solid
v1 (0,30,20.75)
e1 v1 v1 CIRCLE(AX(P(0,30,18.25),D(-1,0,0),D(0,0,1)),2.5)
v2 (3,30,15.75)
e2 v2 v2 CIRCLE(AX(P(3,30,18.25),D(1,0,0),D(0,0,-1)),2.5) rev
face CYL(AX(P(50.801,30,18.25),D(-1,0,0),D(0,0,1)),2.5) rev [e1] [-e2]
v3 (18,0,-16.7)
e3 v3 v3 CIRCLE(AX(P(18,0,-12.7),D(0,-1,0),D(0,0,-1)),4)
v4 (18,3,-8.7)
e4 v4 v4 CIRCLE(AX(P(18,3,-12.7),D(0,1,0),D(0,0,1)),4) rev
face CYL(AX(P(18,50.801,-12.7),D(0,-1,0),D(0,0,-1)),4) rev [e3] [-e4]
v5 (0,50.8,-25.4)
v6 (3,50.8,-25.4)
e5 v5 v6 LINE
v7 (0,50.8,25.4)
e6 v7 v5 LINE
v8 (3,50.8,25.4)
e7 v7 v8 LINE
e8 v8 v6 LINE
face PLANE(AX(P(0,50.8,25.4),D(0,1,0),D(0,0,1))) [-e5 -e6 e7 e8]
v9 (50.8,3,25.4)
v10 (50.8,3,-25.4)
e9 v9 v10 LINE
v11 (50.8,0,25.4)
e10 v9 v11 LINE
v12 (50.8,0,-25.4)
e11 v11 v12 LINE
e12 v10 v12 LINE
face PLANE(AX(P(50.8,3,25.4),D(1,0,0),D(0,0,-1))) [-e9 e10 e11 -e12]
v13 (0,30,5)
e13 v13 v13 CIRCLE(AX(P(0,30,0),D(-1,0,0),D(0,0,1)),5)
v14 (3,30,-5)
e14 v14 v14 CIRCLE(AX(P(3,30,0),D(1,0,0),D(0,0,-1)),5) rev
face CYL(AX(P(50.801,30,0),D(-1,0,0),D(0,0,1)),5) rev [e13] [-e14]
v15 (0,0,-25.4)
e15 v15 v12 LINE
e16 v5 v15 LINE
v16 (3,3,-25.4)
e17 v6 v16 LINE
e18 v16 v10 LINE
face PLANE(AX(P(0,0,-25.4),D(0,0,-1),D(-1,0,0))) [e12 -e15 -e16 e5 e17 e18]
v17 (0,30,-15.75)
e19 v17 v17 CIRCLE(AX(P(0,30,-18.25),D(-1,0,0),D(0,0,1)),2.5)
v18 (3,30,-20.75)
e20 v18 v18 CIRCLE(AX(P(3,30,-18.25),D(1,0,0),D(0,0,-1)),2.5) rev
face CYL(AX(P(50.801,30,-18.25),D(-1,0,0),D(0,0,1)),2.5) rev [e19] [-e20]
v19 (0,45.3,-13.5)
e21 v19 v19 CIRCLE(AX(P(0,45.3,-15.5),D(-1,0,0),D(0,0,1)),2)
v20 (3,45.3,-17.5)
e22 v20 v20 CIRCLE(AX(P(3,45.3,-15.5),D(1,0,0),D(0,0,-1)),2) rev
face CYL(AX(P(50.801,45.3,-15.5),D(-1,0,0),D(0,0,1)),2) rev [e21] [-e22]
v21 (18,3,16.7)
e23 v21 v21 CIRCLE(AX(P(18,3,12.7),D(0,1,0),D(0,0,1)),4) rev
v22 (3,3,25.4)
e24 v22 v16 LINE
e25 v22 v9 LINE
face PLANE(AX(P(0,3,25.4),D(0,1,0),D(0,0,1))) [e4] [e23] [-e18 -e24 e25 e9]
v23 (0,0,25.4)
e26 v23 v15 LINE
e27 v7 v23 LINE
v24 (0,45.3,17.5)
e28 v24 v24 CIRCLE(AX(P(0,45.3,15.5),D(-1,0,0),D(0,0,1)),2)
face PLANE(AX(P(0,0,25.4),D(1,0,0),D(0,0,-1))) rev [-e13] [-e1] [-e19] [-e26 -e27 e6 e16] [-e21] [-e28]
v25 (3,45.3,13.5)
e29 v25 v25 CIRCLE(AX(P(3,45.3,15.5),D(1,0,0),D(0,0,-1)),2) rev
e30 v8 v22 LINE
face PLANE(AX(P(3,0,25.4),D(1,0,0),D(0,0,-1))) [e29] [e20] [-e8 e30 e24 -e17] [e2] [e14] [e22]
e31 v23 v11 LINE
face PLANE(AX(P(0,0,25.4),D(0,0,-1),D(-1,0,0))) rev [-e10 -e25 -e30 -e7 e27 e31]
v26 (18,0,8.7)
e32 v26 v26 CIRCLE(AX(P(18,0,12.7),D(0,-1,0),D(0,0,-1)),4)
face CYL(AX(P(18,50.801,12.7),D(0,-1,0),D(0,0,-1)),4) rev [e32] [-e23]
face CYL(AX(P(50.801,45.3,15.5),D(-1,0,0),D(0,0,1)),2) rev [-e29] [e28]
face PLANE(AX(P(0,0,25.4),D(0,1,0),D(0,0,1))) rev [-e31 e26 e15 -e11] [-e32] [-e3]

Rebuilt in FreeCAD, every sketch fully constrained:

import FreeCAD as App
import Part
import Sketcher


def add_polygon(sketch, points):
    """Adds a closed chain of lines whose ends are joined by coincident constraints."""
    first, n = sketch.GeometryCount, len(points)
    for a, b in zip(points, points[1:] + points[:1]):
        sketch.addGeometry(Part.LineSegment(App.Vector(*a, 0), App.Vector(*b, 0)), False)
    for i in range(n):
        sketch.addConstraint(Sketcher.Constraint("Coincident", first + i, 2, first + (i + 1) % n, 1))

doc = App.newDocument("Part")
params = doc.addObject("Spreadsheet::Sheet", "Params")
for row, (alias, value) in enumerate([
    ("sketch1_width", "3 mm"),
    ("sketch1_width2", "50.8 mm"),
    ("pad1_length", "50.8 mm"),
    ("sketch2_diameter", "5 mm"),
    ("sketch3_diameter", "5 mm"),
    ("sketch4_diameter", "10 mm"),
    ("sketch5_diameter", "8 mm"),
    ("sketch6_diameter", "8 mm"),
    ("sketch7_diameter", "4 mm"),
    ("sketch8_diameter", "4 mm"),
], start=1):
    params.set(f"A{row}", alias)
    params.set(f"B{row}", "=" + value)
    params.setAlias(f"B{row}", alias)

body = doc.addObject("PartDesign::Body", "Body")

# Sketch on XY plane
sketch1 = doc.addObject("Sketcher::SketchObject", "Sketch")
body.addObject(sketch1)
sketch1.AttachmentSupport = (doc.XY_Plane, [""])
sketch1.MapMode = "FlatFace"
add_polygon(sketch1, [(0, 0), (50.8, 0), (50.8, 3), (3, 3), (3, 50.8), (0, 50.8)])  # lines 0-5
sketch1.addConstraint(Sketcher.Constraint("Horizontal", 0))
sketch1.addConstraint(Sketcher.Constraint("Vertical", 1))
sketch1.addConstraint(Sketcher.Constraint("Horizontal", 2))
sketch1.addConstraint(Sketcher.Constraint("Vertical", 3))
sketch1.addConstraint(Sketcher.Constraint("Horizontal", 4))
sketch1.addConstraint(Sketcher.Constraint("Vertical", 5))
sketch1.addConstraint(Sketcher.Constraint("Coincident", 5, 2, -1, 1))
sketch1.addConstraint(Sketcher.Constraint("Equal", 4, 1))
sketch1.addConstraint(Sketcher.Constraint("Equal", 2, 3))
sketch1.addConstraint(Sketcher.Constraint("DistanceX", 4, 2, 4, 1, 3.0))
sketch1.addConstraint(Sketcher.Constraint("DistanceX", 0, 1, 0, 2, 50.8))
sketch1.setExpression("Constraints[15]", "Params.sketch1_width")
sketch1.setExpression("Constraints[16]", "Params.sketch1_width2")
pad1 = doc.addObject("PartDesign::Pad", "Pad")
body.addObject(pad1)
pad1.Profile = sketch1
pad1.setExpression("Length", "Params.pad1_length")
pad1.Midplane = True

# Sketch on YZ plane
sketch2 = doc.addObject("Sketcher::SketchObject", "Sketch001")
body.addObject(sketch2)
sketch2.AttachmentSupport = (doc.YZ_Plane, [""])
sketch2.MapMode = "FlatFace"
sketch2.addGeometry(Part.Circle(App.Vector(30, -18.2, 0), App.Vector(0, 0, 1), 2.5), False)
sketch2.addConstraint(Sketcher.Constraint("Diameter", 0, 5.0))
sketch2.addConstraint(Sketcher.Constraint("DistanceX", -1, 1, 0, 3, 30.0))
sketch2.addConstraint(Sketcher.Constraint("DistanceY", 0, 3, -1, 1, 18.25))
sketch2.setExpression("Constraints[0]", "Params.sketch2_diameter")
pocket1 = doc.addObject("PartDesign::Pocket", "Pocket")
body.addObject(pocket1)
pocket1.Profile = sketch2
pocket1.Type = "UpToFirst"
pocket1.Reversed = True

# Sketch on YZ plane
sketch3 = doc.addObject("Sketcher::SketchObject", "Sketch002")
body.addObject(sketch3)
sketch3.AttachmentSupport = (doc.YZ_Plane, [""])
sketch3.MapMode = "FlatFace"
sketch3.addGeometry(Part.Circle(App.Vector(30, 18.2, 0), App.Vector(0, 0, 1), 2.5), False)
sketch3.addConstraint(Sketcher.Constraint("Diameter", 0, 5.0))
sketch3.addConstraint(Sketcher.Constraint("DistanceX", -1, 1, 0, 3, 30.0))
sketch3.addConstraint(Sketcher.Constraint("DistanceY", -1, 1, 0, 3, 18.25))
sketch3.setExpression("Constraints[0]", "Params.sketch3_diameter")
pocket2 = doc.addObject("PartDesign::Pocket", "Pocket001")
body.addObject(pocket2)
pocket2.Profile = sketch3
pocket2.Type = "UpToFirst"
pocket2.Reversed = True

# Sketch on YZ plane
sketch4 = doc.addObject("Sketcher::SketchObject", "Sketch003")
body.addObject(sketch4)
sketch4.AttachmentSupport = (doc.YZ_Plane, [""])
sketch4.MapMode = "FlatFace"
sketch4.addGeometry(Part.Circle(App.Vector(30, 0, 0), App.Vector(0, 0, 1), 5), False)
sketch4.addConstraint(Sketcher.Constraint("PointOnObject", 0, 3, -1))
sketch4.addConstraint(Sketcher.Constraint("Diameter", 0, 10.0))
sketch4.addConstraint(Sketcher.Constraint("DistanceX", -1, 1, 0, 3, 30.0))
sketch4.setExpression("Constraints[1]", "Params.sketch4_diameter")
pocket3 = doc.addObject("PartDesign::Pocket", "Pocket002")
body.addObject(pocket3)
pocket3.Profile = sketch4
pocket3.Type = "UpToFirst"
pocket3.Reversed = True

# Sketch on XZ plane
sketch5 = doc.addObject("Sketcher::SketchObject", "Sketch004")
body.addObject(sketch5)
sketch5.AttachmentSupport = (doc.XZ_Plane, [""])
sketch5.MapMode = "FlatFace"
sketch5.addGeometry(Part.Circle(App.Vector(18, 12.7, 0), App.Vector(0, 0, 1), 4), False)
sketch5.addConstraint(Sketcher.Constraint("Diameter", 0, 8.0))
sketch5.addConstraint(Sketcher.Constraint("DistanceX", -1, 1, 0, 3, 18.0))
sketch5.addConstraint(Sketcher.Constraint("DistanceY", -1, 1, 0, 3, 12.7))
sketch5.setExpression("Constraints[0]", "Params.sketch5_diameter")
pocket4 = doc.addObject("PartDesign::Pocket", "Pocket003")
body.addObject(pocket4)
pocket4.Profile = sketch5
pocket4.Type = "UpToFirst"

# Sketch on XZ plane
sketch6 = doc.addObject("Sketcher::SketchObject", "Sketch005")
body.addObject(sketch6)
sketch6.AttachmentSupport = (doc.XZ_Plane, [""])
sketch6.MapMode = "FlatFace"
sketch6.addGeometry(Part.Circle(App.Vector(18, -12.7, 0), App.Vector(0, 0, 1), 4), False)
sketch6.addConstraint(Sketcher.Constraint("Diameter", 0, 8.0))
sketch6.addConstraint(Sketcher.Constraint("DistanceX", -1, 1, 0, 3, 18.0))
sketch6.addConstraint(Sketcher.Constraint("DistanceY", 0, 3, -1, 1, 12.7))
sketch6.setExpression("Constraints[0]", "Params.sketch6_diameter")
pocket5 = doc.addObject("PartDesign::Pocket", "Pocket004")
body.addObject(pocket5)
pocket5.Profile = sketch6
pocket5.Type = "UpToFirst"

# Sketch on YZ plane
sketch7 = doc.addObject("Sketcher::SketchObject", "Sketch006")
body.addObject(sketch7)
sketch7.AttachmentSupport = (doc.YZ_Plane, [""])
sketch7.MapMode = "FlatFace"
sketch7.addGeometry(Part.Circle(App.Vector(45.3, -15.5, 0), App.Vector(0, 0, 1), 2), False)
sketch7.addConstraint(Sketcher.Constraint("Diameter", 0, 4.0))
sketch7.addConstraint(Sketcher.Constraint("DistanceX", -1, 1, 0, 3, 45.3))
sketch7.addConstraint(Sketcher.Constraint("DistanceY", 0, 3, -1, 1, 15.5))
sketch7.setExpression("Constraints[0]", "Params.sketch7_diameter")
pocket6 = doc.addObject("PartDesign::Pocket", "Pocket005")
body.addObject(pocket6)
pocket6.Profile = sketch7
pocket6.Type = "UpToFirst"
pocket6.Reversed = True

# Sketch on YZ plane
sketch8 = doc.addObject("Sketcher::SketchObject", "Sketch007")
body.addObject(sketch8)
sketch8.AttachmentSupport = (doc.YZ_Plane, [""])
sketch8.MapMode = "FlatFace"
sketch8.addGeometry(Part.Circle(App.Vector(45.3, 15.5, 0), App.Vector(0, 0, 1), 2), False)
sketch8.addConstraint(Sketcher.Constraint("Diameter", 0, 4.0))
sketch8.addConstraint(Sketcher.Constraint("DistanceX", -1, 1, 0, 3, 45.3))
sketch8.addConstraint(Sketcher.Constraint("DistanceY", -1, 1, 0, 3, 15.5))
sketch8.setExpression("Constraints[0]", "Params.sketch8_diameter")
pocket7 = doc.addObject("PartDesign::Pocket", "Pocket006")
body.addObject(pocket7)
pocket7.Profile = sketch8
pocket7.Type = "UpToFirst"
pocket7.Reversed = True

doc.recompute()
